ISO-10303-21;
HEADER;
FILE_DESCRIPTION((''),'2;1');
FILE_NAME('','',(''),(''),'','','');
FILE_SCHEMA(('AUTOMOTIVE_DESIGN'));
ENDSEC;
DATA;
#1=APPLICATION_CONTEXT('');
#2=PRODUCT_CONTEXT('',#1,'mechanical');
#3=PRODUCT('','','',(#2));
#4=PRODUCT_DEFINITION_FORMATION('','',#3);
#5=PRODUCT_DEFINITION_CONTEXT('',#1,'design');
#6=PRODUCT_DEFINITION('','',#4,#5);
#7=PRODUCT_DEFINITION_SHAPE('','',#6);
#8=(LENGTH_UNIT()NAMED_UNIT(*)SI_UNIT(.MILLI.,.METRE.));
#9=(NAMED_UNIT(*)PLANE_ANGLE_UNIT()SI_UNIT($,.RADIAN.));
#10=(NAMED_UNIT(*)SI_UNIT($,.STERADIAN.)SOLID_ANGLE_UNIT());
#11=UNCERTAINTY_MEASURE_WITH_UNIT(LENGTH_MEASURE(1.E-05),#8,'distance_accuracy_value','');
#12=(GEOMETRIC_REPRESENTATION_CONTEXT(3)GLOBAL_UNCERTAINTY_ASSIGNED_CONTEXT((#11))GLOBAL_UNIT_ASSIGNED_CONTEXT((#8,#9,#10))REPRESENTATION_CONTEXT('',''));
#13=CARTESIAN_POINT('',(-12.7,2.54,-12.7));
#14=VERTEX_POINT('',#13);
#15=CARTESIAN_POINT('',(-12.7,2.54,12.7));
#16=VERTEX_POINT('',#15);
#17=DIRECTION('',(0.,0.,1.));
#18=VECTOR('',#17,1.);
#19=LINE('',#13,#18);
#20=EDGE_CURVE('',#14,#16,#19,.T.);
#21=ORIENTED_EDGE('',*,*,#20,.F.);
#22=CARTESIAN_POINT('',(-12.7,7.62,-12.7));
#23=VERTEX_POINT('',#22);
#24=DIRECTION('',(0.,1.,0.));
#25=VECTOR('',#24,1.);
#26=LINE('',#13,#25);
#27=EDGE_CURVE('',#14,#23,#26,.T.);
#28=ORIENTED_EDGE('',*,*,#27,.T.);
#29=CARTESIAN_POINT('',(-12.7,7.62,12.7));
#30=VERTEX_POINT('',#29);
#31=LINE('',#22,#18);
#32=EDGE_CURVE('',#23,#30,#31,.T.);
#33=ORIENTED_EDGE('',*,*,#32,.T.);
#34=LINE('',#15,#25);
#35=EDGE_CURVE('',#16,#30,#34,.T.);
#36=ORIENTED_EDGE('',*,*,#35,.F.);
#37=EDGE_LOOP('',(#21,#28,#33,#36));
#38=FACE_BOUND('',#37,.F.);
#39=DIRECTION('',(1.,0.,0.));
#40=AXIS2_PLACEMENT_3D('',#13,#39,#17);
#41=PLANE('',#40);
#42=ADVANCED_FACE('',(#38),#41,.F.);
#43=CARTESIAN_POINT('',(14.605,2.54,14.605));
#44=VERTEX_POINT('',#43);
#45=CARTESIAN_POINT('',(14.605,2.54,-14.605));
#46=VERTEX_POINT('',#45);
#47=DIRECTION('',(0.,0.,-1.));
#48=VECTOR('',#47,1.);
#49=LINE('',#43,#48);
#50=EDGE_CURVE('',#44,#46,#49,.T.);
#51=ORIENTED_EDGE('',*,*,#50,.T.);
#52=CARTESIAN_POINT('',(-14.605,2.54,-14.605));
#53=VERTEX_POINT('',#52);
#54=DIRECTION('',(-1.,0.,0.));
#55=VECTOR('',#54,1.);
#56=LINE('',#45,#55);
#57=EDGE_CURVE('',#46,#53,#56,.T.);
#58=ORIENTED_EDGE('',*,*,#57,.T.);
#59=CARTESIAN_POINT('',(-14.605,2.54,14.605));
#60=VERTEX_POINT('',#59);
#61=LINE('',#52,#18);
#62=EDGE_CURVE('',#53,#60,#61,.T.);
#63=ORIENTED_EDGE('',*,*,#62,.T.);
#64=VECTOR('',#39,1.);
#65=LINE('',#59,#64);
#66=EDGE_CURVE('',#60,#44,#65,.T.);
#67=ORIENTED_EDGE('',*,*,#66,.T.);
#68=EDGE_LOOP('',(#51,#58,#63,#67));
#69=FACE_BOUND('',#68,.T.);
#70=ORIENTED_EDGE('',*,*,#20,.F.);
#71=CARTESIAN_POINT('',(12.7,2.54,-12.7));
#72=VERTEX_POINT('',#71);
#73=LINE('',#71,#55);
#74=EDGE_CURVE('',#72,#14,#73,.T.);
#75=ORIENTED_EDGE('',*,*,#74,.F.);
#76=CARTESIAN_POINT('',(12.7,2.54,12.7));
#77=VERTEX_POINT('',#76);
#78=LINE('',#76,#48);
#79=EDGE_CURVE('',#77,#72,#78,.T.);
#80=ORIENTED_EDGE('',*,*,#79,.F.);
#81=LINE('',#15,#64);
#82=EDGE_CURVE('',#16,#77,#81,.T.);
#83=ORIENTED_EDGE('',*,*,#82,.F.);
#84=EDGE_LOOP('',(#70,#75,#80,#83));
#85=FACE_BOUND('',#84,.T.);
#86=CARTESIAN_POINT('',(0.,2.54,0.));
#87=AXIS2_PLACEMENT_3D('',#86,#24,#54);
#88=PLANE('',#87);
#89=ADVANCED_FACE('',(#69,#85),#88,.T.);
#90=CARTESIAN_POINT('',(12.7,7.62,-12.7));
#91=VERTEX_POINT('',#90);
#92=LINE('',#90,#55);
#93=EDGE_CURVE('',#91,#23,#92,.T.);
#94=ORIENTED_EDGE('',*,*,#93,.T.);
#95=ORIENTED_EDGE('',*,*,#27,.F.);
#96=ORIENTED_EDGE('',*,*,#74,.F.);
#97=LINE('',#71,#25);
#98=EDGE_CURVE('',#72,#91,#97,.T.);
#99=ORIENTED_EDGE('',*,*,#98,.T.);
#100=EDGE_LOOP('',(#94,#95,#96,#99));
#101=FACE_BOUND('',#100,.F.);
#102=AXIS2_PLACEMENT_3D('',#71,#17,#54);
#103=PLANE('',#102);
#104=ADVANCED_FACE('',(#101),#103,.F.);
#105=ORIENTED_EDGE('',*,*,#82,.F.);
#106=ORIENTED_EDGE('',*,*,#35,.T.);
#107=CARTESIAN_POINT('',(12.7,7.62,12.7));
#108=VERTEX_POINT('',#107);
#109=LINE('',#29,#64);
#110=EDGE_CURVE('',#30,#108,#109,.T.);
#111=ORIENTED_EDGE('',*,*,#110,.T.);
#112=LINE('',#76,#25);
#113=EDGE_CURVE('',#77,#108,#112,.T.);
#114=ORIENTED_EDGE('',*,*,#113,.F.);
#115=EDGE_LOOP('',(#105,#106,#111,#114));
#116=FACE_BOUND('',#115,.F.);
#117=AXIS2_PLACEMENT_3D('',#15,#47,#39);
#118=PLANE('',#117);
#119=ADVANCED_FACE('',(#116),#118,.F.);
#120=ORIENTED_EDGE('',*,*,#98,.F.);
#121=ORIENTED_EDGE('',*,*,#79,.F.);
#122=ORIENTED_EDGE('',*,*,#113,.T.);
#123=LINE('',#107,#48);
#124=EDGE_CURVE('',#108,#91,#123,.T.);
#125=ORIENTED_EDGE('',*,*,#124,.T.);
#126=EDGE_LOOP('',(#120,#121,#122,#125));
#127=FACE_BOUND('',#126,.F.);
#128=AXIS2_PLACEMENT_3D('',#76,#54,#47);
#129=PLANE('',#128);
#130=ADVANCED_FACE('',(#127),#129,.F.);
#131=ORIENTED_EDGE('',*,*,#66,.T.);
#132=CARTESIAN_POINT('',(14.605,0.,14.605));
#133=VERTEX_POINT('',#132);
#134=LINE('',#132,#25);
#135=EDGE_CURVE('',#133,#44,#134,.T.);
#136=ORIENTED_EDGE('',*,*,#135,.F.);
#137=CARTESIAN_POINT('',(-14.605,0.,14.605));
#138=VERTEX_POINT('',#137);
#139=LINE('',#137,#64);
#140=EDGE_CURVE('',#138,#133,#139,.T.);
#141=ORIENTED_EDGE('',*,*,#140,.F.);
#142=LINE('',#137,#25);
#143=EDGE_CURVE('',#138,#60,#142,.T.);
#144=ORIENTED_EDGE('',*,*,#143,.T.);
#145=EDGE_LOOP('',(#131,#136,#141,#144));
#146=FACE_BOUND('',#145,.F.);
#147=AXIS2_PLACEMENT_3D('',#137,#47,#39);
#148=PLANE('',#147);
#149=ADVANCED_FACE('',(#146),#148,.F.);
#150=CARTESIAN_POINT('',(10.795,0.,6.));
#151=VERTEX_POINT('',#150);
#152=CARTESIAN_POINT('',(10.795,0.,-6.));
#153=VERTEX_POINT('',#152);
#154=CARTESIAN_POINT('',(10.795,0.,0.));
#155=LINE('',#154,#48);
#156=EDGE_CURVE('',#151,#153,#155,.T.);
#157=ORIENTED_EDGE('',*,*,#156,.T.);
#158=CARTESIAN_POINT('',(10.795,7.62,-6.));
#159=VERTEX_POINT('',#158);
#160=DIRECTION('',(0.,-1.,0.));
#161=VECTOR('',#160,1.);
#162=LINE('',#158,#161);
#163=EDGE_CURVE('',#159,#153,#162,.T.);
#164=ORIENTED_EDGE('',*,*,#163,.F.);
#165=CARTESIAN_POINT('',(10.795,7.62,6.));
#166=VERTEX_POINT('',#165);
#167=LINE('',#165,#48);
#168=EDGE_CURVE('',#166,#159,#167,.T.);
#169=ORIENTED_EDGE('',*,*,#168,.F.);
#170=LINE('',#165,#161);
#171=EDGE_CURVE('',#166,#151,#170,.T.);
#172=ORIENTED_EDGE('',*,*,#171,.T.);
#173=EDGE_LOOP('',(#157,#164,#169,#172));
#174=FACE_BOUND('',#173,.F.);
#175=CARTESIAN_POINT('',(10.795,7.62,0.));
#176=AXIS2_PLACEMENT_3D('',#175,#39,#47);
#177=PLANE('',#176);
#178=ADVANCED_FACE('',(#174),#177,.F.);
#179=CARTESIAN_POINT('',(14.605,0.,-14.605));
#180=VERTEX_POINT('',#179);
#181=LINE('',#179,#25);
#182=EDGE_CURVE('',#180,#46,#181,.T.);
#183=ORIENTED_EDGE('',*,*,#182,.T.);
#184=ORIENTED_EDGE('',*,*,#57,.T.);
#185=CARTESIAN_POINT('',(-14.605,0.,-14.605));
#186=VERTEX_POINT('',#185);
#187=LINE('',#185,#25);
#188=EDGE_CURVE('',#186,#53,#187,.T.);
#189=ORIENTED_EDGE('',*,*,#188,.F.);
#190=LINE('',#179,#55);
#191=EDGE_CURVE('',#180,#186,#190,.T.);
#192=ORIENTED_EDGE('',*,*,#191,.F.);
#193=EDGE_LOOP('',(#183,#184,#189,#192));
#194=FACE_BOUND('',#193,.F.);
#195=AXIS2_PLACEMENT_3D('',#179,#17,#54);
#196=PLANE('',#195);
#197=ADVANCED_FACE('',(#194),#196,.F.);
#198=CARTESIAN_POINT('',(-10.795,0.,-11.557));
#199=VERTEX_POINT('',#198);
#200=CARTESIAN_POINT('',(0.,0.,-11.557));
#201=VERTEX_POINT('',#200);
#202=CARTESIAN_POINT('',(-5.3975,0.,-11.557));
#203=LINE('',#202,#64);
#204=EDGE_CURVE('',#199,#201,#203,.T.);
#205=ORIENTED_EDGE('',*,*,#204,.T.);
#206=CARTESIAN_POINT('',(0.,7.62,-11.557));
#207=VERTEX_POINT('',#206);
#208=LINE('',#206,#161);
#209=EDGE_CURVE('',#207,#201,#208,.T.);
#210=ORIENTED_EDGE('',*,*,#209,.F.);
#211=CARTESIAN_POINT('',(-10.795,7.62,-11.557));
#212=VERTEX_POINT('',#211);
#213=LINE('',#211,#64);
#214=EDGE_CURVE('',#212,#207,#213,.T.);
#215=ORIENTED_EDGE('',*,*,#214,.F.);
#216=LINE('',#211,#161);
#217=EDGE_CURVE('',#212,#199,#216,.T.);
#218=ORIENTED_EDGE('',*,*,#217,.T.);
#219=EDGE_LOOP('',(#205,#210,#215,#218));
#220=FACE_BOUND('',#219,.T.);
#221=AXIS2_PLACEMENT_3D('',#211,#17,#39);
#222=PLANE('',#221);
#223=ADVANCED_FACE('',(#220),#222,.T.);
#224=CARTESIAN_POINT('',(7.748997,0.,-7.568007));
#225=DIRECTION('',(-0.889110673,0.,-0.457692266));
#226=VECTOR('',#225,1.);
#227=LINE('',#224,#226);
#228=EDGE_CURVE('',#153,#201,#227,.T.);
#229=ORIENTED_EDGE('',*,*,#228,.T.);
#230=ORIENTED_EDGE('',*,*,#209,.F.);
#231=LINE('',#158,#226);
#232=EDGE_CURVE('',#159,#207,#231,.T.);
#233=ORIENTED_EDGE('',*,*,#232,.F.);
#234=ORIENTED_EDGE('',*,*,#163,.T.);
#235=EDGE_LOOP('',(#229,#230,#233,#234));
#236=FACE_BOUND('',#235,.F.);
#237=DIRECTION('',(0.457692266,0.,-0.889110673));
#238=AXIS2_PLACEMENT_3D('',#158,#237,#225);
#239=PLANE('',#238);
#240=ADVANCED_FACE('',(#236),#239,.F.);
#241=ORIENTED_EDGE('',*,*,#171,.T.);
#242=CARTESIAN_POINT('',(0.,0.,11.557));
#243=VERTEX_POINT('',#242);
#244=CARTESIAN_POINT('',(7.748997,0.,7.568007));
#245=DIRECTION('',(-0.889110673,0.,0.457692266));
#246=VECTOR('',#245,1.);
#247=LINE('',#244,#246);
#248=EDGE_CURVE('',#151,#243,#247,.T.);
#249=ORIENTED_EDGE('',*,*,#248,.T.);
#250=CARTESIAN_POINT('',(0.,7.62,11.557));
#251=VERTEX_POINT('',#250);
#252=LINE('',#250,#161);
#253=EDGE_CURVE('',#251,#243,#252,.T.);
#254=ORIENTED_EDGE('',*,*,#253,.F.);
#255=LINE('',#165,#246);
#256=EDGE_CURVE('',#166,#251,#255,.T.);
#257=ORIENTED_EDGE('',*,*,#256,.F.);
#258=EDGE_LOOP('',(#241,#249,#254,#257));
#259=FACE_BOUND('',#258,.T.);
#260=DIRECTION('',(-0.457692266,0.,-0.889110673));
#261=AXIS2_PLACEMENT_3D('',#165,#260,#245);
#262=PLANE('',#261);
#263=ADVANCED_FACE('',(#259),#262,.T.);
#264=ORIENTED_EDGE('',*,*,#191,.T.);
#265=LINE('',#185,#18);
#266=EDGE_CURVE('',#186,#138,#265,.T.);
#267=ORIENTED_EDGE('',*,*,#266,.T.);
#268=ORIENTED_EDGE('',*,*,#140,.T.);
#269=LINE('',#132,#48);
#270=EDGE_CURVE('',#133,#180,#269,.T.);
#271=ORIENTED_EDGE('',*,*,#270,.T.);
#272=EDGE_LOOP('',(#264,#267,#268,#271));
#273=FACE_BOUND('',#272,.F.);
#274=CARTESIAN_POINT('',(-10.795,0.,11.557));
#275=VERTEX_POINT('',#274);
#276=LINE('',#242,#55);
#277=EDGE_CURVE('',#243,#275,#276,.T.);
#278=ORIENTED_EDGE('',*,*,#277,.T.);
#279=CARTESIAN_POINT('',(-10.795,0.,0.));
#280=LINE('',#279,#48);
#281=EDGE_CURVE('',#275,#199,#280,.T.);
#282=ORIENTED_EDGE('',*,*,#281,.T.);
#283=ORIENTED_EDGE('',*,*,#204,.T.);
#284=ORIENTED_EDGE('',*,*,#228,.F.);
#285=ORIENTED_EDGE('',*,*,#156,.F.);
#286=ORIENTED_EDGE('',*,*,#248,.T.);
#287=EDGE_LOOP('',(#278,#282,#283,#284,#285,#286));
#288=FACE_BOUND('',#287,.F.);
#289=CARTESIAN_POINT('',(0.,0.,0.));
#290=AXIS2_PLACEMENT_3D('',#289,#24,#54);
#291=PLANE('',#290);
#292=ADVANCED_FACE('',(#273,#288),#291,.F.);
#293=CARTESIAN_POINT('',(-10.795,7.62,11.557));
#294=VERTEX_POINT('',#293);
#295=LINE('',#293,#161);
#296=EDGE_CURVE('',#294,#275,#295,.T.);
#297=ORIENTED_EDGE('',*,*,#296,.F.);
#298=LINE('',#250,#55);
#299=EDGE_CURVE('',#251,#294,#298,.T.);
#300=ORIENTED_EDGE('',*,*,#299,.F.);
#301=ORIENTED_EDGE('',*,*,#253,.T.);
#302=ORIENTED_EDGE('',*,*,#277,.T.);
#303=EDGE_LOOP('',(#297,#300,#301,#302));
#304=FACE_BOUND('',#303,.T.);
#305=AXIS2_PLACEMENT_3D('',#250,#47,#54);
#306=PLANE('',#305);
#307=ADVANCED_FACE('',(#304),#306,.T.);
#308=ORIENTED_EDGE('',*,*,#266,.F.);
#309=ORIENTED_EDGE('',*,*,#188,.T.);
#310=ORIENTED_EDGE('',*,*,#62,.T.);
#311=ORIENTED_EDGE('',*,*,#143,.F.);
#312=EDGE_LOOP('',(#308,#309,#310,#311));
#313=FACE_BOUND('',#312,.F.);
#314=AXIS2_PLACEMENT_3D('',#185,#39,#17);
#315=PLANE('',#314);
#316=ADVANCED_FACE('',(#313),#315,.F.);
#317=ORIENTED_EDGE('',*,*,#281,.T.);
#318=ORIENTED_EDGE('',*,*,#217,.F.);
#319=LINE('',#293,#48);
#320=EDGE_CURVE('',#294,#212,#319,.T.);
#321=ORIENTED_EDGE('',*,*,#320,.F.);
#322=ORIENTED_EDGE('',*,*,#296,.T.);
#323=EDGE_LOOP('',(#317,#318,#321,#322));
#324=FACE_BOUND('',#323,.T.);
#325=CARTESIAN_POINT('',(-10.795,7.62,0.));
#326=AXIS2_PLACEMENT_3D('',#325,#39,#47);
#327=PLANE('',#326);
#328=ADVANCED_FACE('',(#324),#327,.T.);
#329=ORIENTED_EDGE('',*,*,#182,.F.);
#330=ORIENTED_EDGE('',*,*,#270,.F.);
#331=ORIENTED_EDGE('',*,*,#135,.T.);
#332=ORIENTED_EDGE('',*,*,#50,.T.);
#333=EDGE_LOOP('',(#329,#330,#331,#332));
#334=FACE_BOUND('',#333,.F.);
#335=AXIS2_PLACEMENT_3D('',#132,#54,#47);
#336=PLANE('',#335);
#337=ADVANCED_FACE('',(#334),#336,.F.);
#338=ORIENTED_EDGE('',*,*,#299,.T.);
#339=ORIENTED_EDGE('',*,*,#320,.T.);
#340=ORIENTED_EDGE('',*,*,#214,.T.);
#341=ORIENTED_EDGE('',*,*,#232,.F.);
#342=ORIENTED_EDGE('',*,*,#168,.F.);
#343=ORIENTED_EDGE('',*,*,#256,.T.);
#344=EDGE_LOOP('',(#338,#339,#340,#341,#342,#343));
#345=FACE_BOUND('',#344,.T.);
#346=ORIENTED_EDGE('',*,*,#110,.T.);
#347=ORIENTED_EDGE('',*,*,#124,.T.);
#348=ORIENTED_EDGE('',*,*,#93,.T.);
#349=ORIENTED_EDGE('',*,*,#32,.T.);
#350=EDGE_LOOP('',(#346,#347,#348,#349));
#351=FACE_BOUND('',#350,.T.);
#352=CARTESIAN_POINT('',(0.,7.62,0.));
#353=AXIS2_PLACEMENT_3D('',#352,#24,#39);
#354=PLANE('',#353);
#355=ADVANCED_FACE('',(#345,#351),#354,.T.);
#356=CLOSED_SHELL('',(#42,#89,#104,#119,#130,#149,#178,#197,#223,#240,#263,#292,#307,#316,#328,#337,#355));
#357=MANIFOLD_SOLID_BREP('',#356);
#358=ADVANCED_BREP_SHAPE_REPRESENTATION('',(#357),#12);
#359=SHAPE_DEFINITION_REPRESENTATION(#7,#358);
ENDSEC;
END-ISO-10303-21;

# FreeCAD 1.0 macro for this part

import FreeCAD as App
import Part
import Sketcher

V = App.Vector
Q = App.Units.Quantity

doc = App.newDocument("Part")
params = doc.addObject("Spreadsheet::Sheet", "Params")
for row, (alias, value) in enumerate([
    ("sketch1_width", "1.15 in"),
    ("pad1_length", "0.1 in"),
    ("sketch2_width", "1 in"),
    ("pad2_length", "0.2 in"),
    ("sketch3_height", "0.91 in"),
    ("sketch3_width", "0.425 in"),
    ("pocket1_length", "1 in"),
], start=1):
    params.set(f"A{row}", alias)
    params.set(f"B{row}", "=" + value)
    params.setAlias(f"B{row}", alias)

body = doc.addObject("PartDesign::Body", "Body")

# Sketch on XZ plane
sketch1 = body.newObject("Sketcher::SketchObject", "Sketch")
sketch1.AttachmentSupport = (doc.getObject("XZ_Plane"), [""])
sketch1.MapMode = "FlatFace"
sketch1.addGeometry([
    Part.LineSegment(V(-15, -15, 0), V(-15, 15, 0)),
    Part.LineSegment(V(-15, 15, 0), V(15, 15, 0)),
    Part.LineSegment(V(15, 15, 0), V(15, -15, 0)),
    Part.LineSegment(V(15, -15, 0), V(-15, -15, 0)),
], False)
sketch1.addConstraint([
    Sketcher.Constraint("Coincident", 0, 2, 1, 1),
    Sketcher.Constraint("Coincident", 1, 2, 2, 1),
    Sketcher.Constraint("Coincident", 2, 2, 3, 1),
    Sketcher.Constraint("Coincident", 3, 2, 0, 1),
    Sketcher.Constraint("Vertical", 0),
    Sketcher.Constraint("Horizontal", 1),
    Sketcher.Constraint("Vertical", 2),
    Sketcher.Constraint("Horizontal", 3),
    Sketcher.Constraint("Symmetric", 0, 2, 2, 2, -1, 1),
    Sketcher.Constraint("Equal", 3, 0),
    Sketcher.Constraint("DistanceX", 1, 1, 1, 2, Q("1.15 in")),
])
sketch1.setExpression("Constraints[10]", "Params.sketch1_width")
pad1 = body.newObject("PartDesign::Pad", "Pad")
pad1.Profile = sketch1
pad1.setExpression("Length", "Params.pad1_length")
pad1.Reversed = True

# Sketch on XZ plane
sketch2 = body.newObject("Sketcher::SketchObject", "Sketch001")
sketch2.AttachmentSupport = (doc.getObject("XZ_Plane"), [""])
sketch2.MapMode = "FlatFace"
sketch2.AttachmentOffset = App.Placement(V(0, 0, -0.1 * 25.4), App.Rotation())
sketch2.addGeometry([
    Part.LineSegment(V(-13, -13, 0), V(-13, 13, 0)),
    Part.LineSegment(V(-13, 13, 0), V(13, 13, 0)),
    Part.LineSegment(V(13, 13, 0), V(13, -13, 0)),
    Part.LineSegment(V(13, -13, 0), V(-13, -13, 0)),
], False)
sketch2.addConstraint([
    Sketcher.Constraint("Coincident", 0, 2, 1, 1),
    Sketcher.Constraint("Coincident", 1, 2, 2, 1),
    Sketcher.Constraint("Coincident", 2, 2, 3, 1),
    Sketcher.Constraint("Coincident", 3, 2, 0, 1),
    Sketcher.Constraint("Vertical", 0),
    Sketcher.Constraint("Horizontal", 1),
    Sketcher.Constraint("Vertical", 2),
    Sketcher.Constraint("Horizontal", 3),
    Sketcher.Constraint("Symmetric", 0, 2, 2, 2, -1, 1),
    Sketcher.Constraint("Equal", 3, 0),
    Sketcher.Constraint("DistanceX", 1, 1, 1, 2, Q("1 in")),
])
sketch2.setExpression("Constraints[10]", "Params.sketch2_width")
pad2 = body.newObject("PartDesign::Pad", "Pad001")
pad2.Profile = sketch2
pad2.setExpression("Length", "Params.pad2_length")
pad2.Reversed = True

# Sketch on XZ plane
sketch3 = body.newObject("Sketcher::SketchObject", "Sketch002")
sketch3.AttachmentSupport = (doc.getObject("XZ_Plane"), [""])
sketch3.MapMode = "FlatFace"
sketch3.AttachmentOffset = App.Placement(V(0, 0, -0.3 * 25.4), App.Rotation())
sketch3.addGeometry([
    Part.LineSegment(V(-11, -12, 0), V(-11, 12, 0)),  # 0
    Part.LineSegment(V(-11, 12, 0), V(0, 12, 0)),  # 1
    Part.LineSegment(V(0, 12, 0), V(11, 6, 0)),  # 2
    Part.LineSegment(V(11, 6, 0), V(11, -6, 0)),  # 3
    Part.LineSegment(V(11, -6, 0), V(0, -12, 0)),  # 4
    Part.LineSegment(V(0, -12, 0), V(-11, -12, 0)),  # 5
], False)
sketch3.addConstraint([
    Sketcher.Constraint("Coincident", 0, 2, 1, 1),
    Sketcher.Constraint("Coincident", 1, 2, 2, 1),
    Sketcher.Constraint("Coincident", 2, 2, 3, 1),
    Sketcher.Constraint("Coincident", 3, 2, 4, 1),
    Sketcher.Constraint("Coincident", 4, 2, 5, 1),
    Sketcher.Constraint("Coincident", 5, 2, 0, 1),
    Sketcher.Constraint("Vertical", 0),
    Sketcher.Constraint("Horizontal", 1),
    Sketcher.Constraint("Vertical", 3),
    Sketcher.Constraint("Horizontal", 5),
    Sketcher.Constraint("Symmetric", 1, 2, 4, 2, -1, 1),
    Sketcher.Constraint("PointOnObject", 1, 2, -2),
    Sketcher.Constraint("Equal", 2, 4),
    Sketcher.Constraint("DistanceY", 0, 1, 0, 2, Q("0.91 in")),
    Sketcher.Constraint("DistanceX", 1, 1, 1, 2, Q("0.425 in")),
    Sketcher.Constraint("DistanceX", 0, 2, 2, 2, Q("0.85 in")),
    Sketcher.Constraint("DistanceY", 3, 2, 3, 1, 12.0),
])
sketch3.setExpression("Constraints[13]", "Params.sketch3_height")
sketch3.setExpression("Constraints[14]", "Params.sketch3_width")
pocket1 = body.newObject("PartDesign::Pocket", "Pocket")
pocket1.Profile = sketch3
pocket1.setExpression("Length", "Params.pocket1_length")
pocket1.Reversed = True

doc.recompute()
